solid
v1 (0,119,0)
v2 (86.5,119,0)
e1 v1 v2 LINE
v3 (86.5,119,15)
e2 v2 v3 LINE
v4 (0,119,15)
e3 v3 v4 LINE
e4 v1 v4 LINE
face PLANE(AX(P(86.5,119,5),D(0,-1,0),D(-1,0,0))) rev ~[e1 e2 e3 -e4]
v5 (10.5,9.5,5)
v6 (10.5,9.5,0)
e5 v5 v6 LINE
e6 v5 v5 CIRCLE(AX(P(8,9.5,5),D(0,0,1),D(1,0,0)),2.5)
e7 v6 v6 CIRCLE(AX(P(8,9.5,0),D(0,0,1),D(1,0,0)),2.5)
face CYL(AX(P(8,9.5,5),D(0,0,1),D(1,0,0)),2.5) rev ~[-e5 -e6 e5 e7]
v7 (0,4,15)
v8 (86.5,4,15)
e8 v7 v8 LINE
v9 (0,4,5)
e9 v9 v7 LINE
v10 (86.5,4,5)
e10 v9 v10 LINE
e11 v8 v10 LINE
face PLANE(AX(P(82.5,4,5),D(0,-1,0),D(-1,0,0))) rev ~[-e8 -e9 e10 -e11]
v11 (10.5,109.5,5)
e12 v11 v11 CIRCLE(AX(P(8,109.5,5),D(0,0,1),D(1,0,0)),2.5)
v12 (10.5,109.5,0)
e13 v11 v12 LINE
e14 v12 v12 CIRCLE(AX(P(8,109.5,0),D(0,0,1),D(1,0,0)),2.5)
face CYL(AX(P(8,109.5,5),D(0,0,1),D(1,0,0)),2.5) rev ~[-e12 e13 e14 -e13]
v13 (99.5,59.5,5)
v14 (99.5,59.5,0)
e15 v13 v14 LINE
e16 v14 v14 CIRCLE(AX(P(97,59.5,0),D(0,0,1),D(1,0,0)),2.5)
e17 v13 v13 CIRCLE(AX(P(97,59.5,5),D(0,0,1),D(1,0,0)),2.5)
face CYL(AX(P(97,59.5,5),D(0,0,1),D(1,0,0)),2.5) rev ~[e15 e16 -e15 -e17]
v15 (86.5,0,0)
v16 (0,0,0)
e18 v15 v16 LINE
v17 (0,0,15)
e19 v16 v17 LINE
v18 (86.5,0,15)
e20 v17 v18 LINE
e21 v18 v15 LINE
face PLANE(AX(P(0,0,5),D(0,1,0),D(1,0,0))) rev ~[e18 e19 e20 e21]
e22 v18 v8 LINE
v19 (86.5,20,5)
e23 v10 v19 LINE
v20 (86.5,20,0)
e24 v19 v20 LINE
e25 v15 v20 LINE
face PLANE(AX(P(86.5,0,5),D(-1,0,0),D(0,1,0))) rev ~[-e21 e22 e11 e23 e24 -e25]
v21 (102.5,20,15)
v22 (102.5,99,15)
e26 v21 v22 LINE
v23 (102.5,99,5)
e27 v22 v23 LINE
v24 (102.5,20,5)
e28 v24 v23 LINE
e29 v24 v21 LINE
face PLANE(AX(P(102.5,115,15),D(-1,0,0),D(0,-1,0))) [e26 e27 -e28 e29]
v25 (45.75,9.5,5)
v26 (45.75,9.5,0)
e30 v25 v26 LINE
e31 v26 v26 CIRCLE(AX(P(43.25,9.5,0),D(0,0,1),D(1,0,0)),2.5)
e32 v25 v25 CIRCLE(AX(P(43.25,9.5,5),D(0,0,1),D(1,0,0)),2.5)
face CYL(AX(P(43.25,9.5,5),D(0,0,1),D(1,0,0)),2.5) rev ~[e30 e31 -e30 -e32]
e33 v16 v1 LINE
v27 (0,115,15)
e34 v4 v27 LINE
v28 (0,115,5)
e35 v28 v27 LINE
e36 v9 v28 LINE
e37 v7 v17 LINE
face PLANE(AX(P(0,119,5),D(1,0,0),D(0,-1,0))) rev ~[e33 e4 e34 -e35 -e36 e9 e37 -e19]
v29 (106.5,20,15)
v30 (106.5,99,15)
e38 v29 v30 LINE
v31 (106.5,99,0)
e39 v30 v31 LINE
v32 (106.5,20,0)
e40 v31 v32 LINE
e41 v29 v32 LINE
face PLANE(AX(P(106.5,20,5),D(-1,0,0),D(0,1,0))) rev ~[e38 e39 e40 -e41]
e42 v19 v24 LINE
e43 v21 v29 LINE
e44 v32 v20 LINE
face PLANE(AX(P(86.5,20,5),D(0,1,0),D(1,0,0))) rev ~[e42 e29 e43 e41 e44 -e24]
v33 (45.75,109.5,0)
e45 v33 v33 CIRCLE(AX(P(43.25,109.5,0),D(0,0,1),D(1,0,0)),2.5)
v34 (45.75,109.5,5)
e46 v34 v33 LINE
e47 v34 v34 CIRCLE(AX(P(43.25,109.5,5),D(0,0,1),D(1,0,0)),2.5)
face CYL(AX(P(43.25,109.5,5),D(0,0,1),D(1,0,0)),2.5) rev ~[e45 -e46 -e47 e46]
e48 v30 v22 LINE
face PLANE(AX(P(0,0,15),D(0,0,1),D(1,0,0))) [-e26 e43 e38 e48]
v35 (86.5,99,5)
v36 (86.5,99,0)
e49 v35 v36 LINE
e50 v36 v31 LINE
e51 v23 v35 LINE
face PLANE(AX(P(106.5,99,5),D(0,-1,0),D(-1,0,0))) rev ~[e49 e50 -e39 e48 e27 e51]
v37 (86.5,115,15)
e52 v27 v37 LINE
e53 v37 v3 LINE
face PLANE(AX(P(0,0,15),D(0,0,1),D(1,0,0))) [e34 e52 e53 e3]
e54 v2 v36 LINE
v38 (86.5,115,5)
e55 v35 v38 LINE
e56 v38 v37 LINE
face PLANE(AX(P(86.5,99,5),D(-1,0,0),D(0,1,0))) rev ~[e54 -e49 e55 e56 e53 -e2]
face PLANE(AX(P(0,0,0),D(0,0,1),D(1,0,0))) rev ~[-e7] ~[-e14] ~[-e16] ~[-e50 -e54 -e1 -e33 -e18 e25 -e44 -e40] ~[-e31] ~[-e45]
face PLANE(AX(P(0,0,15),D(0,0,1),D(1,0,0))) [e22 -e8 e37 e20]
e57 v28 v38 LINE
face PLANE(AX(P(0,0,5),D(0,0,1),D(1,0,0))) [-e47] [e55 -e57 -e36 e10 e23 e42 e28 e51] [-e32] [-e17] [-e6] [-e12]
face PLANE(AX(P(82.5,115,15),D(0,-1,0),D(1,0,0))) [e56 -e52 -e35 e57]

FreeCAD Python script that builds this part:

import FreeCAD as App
import Part
import Sketcher
from FreeCAD import Vector


def add_polygon(sketch, points):
    """Adds a closed chain of lines whose ends are joined by coincident constraints."""
    first, n = sketch.GeometryCount, len(points)
    for a, b in zip(points, points[1:] + points[:1]):
        sketch.addGeometry(Part.LineSegment(App.Vector(*a, 0), App.Vector(*b, 0)), False)
    for i in range(n):
        sketch.addConstraint(Sketcher.Constraint("Coincident", first + i, 2, first + (i + 1) % n, 1))

doc = App.newDocument("Part")
body = doc.addObject("PartDesign::Body", "Body")

sketch1 = body.newObject("Sketcher::SketchObject", "Sketch")
sketch1.AttachmentSupport = (doc.getObject("XY_Plane"), [""])
sketch1.MapMode = "FlatFace"
add_polygon(sketch1, [(86, 119), (0, 119), (0, 0), (86, 0), (86, 20), (106, 20), (106, 99), (86, 99)])
sketch1.addConstraint(Sketcher.Constraint("Horizontal", 0))
sketch1.addConstraint(Sketcher.Constraint("Vertical", 1))
sketch1.addConstraint(Sketcher.Constraint("Horizontal", 2))
sketch1.addConstraint(Sketcher.Constraint("Vertical", 3))
sketch1.addConstraint(Sketcher.Constraint("Horizontal", 4))
sketch1.addConstraint(Sketcher.Constraint("Vertical", 5))
sketch1.addConstraint(Sketcher.Constraint("Horizontal", 6))
sketch1.addConstraint(Sketcher.Constraint("Vertical", 7))
sketch1.addConstraint(Sketcher.Constraint("Coincident", 1, 2, -1, 1))
sketch1.addConstraint(Sketcher.Constraint("Vertical", 3, 2, 6, 2))
sketch1.addConstraint(Sketcher.Constraint("Equal", 6, 3))
sketch1.addConstraint(Sketcher.Constraint("Equal", 3, 7))
sketch1.addConstraint(Sketcher.Constraint("DistanceX", 4, 1, 4, 2, 20.0))
sketch1.addConstraint(Sketcher.Constraint("DistanceY", 1, 2, 1, 1, 119.0))
sketch1.addConstraint(Sketcher.Constraint("DistanceX", -1, 1, 4, 2, 106.5))
pad1 = body.newObject("PartDesign::Pad", "Pad")
pad1.Profile = sketch1
pad1.Length = 5

sketch2 = body.newObject("Sketcher::SketchObject", "Sketch001")
sketch2.AttachmentSupport = (doc.getObject("XY_Plane"), [""])
sketch2.MapMode = "FlatFace"
sketch2.AttachmentOffset = App.Placement(Vector(0, 0, 5), App.Rotation())
sketch2.addGeometry(Part.Circle(Vector(43.2, 9.5, 0), Vector(0, 0, 1), 2.5), False)
sketch2.addGeometry(Part.Circle(Vector(97, 59.5, 0), Vector(0, 0, 1), 2.5), False)
sketch2.addGeometry(Part.Circle(Vector(43.2, 109.5, 0), Vector(0, 0, 1), 2.5), False)
sketch2.addGeometry(Part.Circle(Vector(8, 109.5, 0), Vector(0, 0, 1), 2.5), False)
sketch2.addGeometry(Part.Circle(Vector(8, 9.5, 0), Vector(0, 0, 1), 2.5), False)
sketch2.addConstraint(Sketcher.Constraint("Equal", 0, 1))
sketch2.addConstraint(Sketcher.Constraint("Equal", 1, 2))
sketch2.addConstraint(Sketcher.Constraint("Equal", 2, 3))
sketch2.addConstraint(Sketcher.Constraint("Equal", 3, 4))
sketch2.addConstraint(Sketcher.Constraint("Horizontal", 2, 3, 3, 3))
sketch2.addConstraint(Sketcher.Constraint("Horizontal", 0, 3, 4, 3))
sketch2.addConstraint(Sketcher.Constraint("Vertical", 0, 3, 2, 3))
sketch2.addConstraint(Sketcher.Constraint("Vertical", 3, 3, 4, 3))
sketch2.addConstraint(Sketcher.Constraint("Diameter", 0, 5.0))
sketch2.addConstraint(Sketcher.Constraint("DistanceX", -1, 1, 3, 3, 8.0))
sketch2.addConstraint(Sketcher.Constraint("DistanceY", -1, 1, 0, 3, 9.5))
sketch2.addConstraint(Sketcher.Constraint("DistanceX", -1, 1, 1, 3, 97.0))
sketch2.addConstraint(Sketcher.Constraint("DistanceY", 0, 3, 1, 3, 50.0))
sketch2.addConstraint(Sketcher.Constraint("DistanceY", 1, 3, 2, 3, 50.0))
sketch2.addConstraint(Sketcher.Constraint("DistanceX", -1, 1, 0, 3, 43.25))
pocket1 = body.newObject("PartDesign::Pocket", "Pocket")
pocket1.Profile = sketch2
pocket1.Type = "ThroughAll"

sketch3 = body.newObject("Sketcher::SketchObject", "Sketch002")
sketch3.AttachmentSupport = (doc.getObject("XY_Plane"), [""])
sketch3.MapMode = "FlatFace"
sketch3.AttachmentOffset = App.Placement(Vector(0, 0, 5), App.Rotation())
add_polygon(sketch3, [(86.5, 99), (86.5, 119), (0, 119), (0, 115), (82.5, 115), (82.5, 95), (102.5, 95), (102.5, 24), (82.5, 24), (82.5, 4), (0, 4), (0, 0), (86.5, 0), (86.5, 20), (106.5, 20), (106.5, 99)])
sketch3.addConstraint(Sketcher.Constraint("Vertical", 0))
sketch3.addConstraint(Sketcher.Constraint("Horizontal", 1))
sketch3.addConstraint(Sketcher.Constraint("Vertical", 2))
sketch3.addConstraint(Sketcher.Constraint("Horizontal", 3))
sketch3.addConstraint(Sketcher.Constraint("Vertical", 4))
sketch3.addConstraint(Sketcher.Constraint("Horizontal", 5))
sketch3.addConstraint(Sketcher.Constraint("Vertical", 6))
sketch3.addConstraint(Sketcher.Constraint("Horizontal", 7))
sketch3.addConstraint(Sketcher.Constraint("Vertical", 8))
sketch3.addConstraint(Sketcher.Constraint("Horizontal", 9))
sketch3.addConstraint(Sketcher.Constraint("Vertical", 10))
sketch3.addConstraint(Sketcher.Constraint("Horizontal", 11))
sketch3.addConstraint(Sketcher.Constraint("Vertical", 12))
sketch3.addConstraint(Sketcher.Constraint("Horizontal", 13))
sketch3.addConstraint(Sketcher.Constraint("Vertical", 14))
sketch3.addConstraint(Sketcher.Constraint("Horizontal", 15))
sketch3.addConstraint(Sketcher.Constraint("Coincident", 10, 2, -1, 1))
sketch3.addConstraint(Sketcher.Constraint("PointOnObject", 1, 2, -2))
sketch3.addConstraint(Sketcher.Constraint("Vertical", 4, 2, 7, 2))
sketch3.addConstraint(Sketcher.Constraint("Vertical", 0, 2, 11, 2))
sketch3.addConstraint(Sketcher.Constraint("Equal", 7, 13))
sketch3.addConstraint(Sketcher.Constraint("Equal", 15, 0))
sketch3.addConstraint(Sketcher.Constraint("Equal", 0, 4))
sketch3.addConstraint(Sketcher.Constraint("Equal", 4, 8))
sketch3.addConstraint(Sketcher.Constraint("Equal", 2, 10))
sketch3.addConstraint(Sketcher.Constraint("Equal", 8, 12))
sketch3.addConstraint(Sketcher.Constraint("DistanceY", 2, 2, 2, 1, 4.0))
sketch3.addConstraint(Sketcher.Constraint("DistanceX", 3, 2, 0, 2, 4.0))
sketch3.addConstraint(Sketcher.Constraint("DistanceX", 5, 1, 5, 2, 20.0))
sketch3.addConstraint(Sketcher.Constraint("DistanceY", 6, 2, 6, 1, 71.0))
sketch3.addConstraint(Sketcher.Constraint("DistanceX", 1, 2, 1, 1, 86.5))
pad2 = body.newObject("PartDesign::Pad", "Pad001")
pad2.Profile = sketch3
pad2.Length = 10

sketch4 = body.newObject("Sketcher::SketchObject", "Sketch003")
sketch4.AttachmentSupport = (doc.getObject("XY_Plane"), [""])
sketch4.MapMode = "FlatFace"
sketch4.AttachmentOffset = App.Placement(Vector(0, 0, 15), App.Rotation())
add_polygon(sketch4, [(102, 115), (82, 115), (82, 4), (102, 4)])
sketch4.addConstraint(Sketcher.Constraint("Horizontal", 0))
sketch4.addConstraint(Sketcher.Constraint("Vertical", 1))
sketch4.addConstraint(Sketcher.Constraint("Horizontal", 2))
sketch4.addConstraint(Sketcher.Constraint("Vertical", 3))
sketch4.addConstraint(Sketcher.Constraint("DistanceX", 0, 2, 0, 1, 20.0))
sketch4.addConstraint(Sketcher.Constraint("DistanceY", 1, 2, 1, 1, 111.0))
sketch4.addConstraint(Sketcher.Constraint("DistanceY", -1, 1, 0, 2, 115.0))
sketch4.addConstraint(Sketcher.Constraint("DistanceX", -1, 1, 0, 2, 82.5))
pocket2 = body.newObject("PartDesign::Pocket", "Pocket001")
pocket2.Profile = sketch4
pocket2.Length = 10

doc.recompute()
